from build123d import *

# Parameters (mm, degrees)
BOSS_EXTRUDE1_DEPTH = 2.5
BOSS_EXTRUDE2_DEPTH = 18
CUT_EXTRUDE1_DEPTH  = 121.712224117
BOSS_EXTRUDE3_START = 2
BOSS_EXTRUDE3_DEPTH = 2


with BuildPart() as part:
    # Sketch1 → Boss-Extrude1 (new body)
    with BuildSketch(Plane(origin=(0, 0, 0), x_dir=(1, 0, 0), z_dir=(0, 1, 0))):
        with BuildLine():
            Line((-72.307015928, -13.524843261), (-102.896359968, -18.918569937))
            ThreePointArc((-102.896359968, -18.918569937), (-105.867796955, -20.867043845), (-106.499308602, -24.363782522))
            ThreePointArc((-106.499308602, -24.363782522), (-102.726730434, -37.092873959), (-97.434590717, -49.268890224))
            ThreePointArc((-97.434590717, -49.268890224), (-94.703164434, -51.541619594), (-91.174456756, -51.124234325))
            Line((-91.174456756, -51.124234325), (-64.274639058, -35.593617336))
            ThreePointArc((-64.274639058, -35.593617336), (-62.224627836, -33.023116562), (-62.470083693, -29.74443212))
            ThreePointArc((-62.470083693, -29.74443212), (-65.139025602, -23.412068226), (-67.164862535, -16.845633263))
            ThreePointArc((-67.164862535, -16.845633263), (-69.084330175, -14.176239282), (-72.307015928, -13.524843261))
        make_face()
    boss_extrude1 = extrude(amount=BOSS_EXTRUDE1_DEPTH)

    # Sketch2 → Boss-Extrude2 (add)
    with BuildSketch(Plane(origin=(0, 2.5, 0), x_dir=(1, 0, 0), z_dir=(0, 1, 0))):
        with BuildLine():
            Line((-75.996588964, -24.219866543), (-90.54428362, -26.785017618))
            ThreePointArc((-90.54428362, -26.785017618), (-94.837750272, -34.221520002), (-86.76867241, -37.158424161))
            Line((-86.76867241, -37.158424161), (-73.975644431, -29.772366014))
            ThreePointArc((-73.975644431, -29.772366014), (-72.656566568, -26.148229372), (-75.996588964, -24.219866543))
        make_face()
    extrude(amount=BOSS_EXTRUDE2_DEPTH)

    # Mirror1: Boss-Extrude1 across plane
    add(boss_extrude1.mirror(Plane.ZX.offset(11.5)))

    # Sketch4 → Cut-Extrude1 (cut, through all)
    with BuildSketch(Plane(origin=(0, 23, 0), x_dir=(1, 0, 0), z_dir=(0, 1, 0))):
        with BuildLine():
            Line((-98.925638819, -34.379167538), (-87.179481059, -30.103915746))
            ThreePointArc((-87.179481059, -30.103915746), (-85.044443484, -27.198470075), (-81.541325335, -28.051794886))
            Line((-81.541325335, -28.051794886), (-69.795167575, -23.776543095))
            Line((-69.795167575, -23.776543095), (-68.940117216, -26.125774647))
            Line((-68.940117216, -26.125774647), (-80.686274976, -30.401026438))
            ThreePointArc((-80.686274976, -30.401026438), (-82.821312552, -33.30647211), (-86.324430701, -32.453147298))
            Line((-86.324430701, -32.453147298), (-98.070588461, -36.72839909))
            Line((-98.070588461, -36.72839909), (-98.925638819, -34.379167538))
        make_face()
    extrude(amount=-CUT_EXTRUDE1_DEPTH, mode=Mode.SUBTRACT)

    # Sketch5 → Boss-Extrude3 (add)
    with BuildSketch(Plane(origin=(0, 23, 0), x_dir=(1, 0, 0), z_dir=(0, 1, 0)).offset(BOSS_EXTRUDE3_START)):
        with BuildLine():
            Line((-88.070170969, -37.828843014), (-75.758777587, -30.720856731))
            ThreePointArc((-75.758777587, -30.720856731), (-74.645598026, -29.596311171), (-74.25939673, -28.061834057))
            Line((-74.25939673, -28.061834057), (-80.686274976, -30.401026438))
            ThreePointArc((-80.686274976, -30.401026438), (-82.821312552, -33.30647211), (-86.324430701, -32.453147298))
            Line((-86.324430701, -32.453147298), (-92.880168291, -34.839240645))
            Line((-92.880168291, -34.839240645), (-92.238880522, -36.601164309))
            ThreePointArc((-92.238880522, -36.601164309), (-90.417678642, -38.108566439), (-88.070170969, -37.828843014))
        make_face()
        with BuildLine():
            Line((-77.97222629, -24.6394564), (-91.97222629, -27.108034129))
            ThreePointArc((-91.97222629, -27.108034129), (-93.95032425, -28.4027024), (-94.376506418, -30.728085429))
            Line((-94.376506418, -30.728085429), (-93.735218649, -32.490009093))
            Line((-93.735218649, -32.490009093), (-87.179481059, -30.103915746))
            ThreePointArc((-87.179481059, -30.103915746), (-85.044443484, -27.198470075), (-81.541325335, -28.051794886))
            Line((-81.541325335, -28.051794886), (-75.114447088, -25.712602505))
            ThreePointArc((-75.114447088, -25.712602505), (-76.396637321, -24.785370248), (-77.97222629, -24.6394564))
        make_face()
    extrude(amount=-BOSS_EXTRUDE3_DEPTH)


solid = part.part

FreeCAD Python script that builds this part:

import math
import FreeCAD as App
import Part
import Sketcher

V = App.Vector
Q = App.Units.Quantity

doc = App.newDocument("Part")
params = doc.addObject("Spreadsheet::Sheet", "Params")
for row, (alias, value) in enumerate([
    ("sketch1_radius", "109 mm"),
    ("sketch1_radius2", "69 mm"),
    ("sketch1_radius3", "4.5 mm"),
    ("pad1_length", "2.5 mm"),
    ("sketch2_radius", "3 mm"),
    ("pad2_length", "18 mm"),
    ("sketch3_radius", "3.25 mm"),
    ("sketch3_length", "12.5 mm"),
    ("sketch3_length2", "2.5 mm"),
    ("sketch4_radius", "3 mm"),
    ("sketch4_radius2", "3.25 mm"),
    ("pad3_length", "2 mm"),
], start=1):
    params.set(f"A{row}", alias)
    params.set(f"B{row}", "=" + value)
    params.setAlias(f"B{row}", alias)

body = doc.addObject("PartDesign::Body", "Body")

# Sketch on XZ plane
sketch1 = body.newObject("Sketcher::SketchObject", "Sketch")
sketch1.AttachmentSupport = (doc.getObject("XZ_Plane"), [""])
sketch1.MapMode = "FlatFace"
sketch1.addGeometry(Part.LineSegment(V(-72.3, 13.5, 0), V(-102.9, 18.9, 0)), False)
sketch1.addGeometry(Part.ArcOfCircle(Part.Circle(V(-102.1, 23.4, 0), V(0, 0, 1), 4.5), math.radians(167), math.radians(260)), False)
sketch1.addGeometry(Part.ArcOfCircle(Part.Circle(V(-0.3, -0.2, 0), V(0, 0, 1), 109), math.radians(153.02), math.radians(166.98)), False)
sketch1.addGeometry(Part.ArcOfCircle(Part.Circle(V(-93.4, 47.2, 0), V(0, 0, 1), 4.5), math.radians(60), math.radians(153)), False)
sketch1.addGeometry(Part.LineSegment(V(-91.2, 51.1, 0), V(-64.3, 35.6, 0)), False)
sketch1.addGeometry(Part.ArcOfCircle(Part.Circle(V(-66.5, 31.7, 0), V(0, 0, 1), 4.5), math.radians(-26), math.radians(60)), False)
sketch1.addGeometry(Part.ArcOfCircle(Part.Circle(V(-0.3, -0.2, 0), V(0, 0, 1), 69), math.radians(154.29), math.radians(165.71)), False)
sketch1.addGeometry(Part.ArcOfCircle(Part.Circle(V(-71.5, 18, 0), V(0, 0, 1), 4.5), math.radians(-100), math.radians(-14)), False)
sketch1.addConstraint(Sketcher.Constraint("Tangent", 0, 2, 1, 2))
sketch1.addConstraint(Sketcher.Constraint("Tangent", 1, 1, 2, 2))
sketch1.addConstraint(Sketcher.Constraint("Tangent", 2, 1, 3, 2))
sketch1.addConstraint(Sketcher.Constraint("Tangent", 3, 1, 4, 1))
sketch1.addConstraint(Sketcher.Constraint("Tangent", 4, 2, 5, 2))
sketch1.addConstraint(Sketcher.Constraint("Tangent", 5, 1, 6, 1))
sketch1.addConstraint(Sketcher.Constraint("Tangent", 6, 2, 7, 2))
sketch1.addConstraint(Sketcher.Constraint("Tangent", 7, 1, 0, 1))
sketch1.addConstraint(Sketcher.Constraint("Coincident", 6, 3, 2, 3))
sketch1.addConstraint(Sketcher.Constraint("Equal", 1, 3))
sketch1.addConstraint(Sketcher.Constraint("Equal", 3, 5))
sketch1.addConstraint(Sketcher.Constraint("Equal", 5, 7))
sketch1.addConstraint(Sketcher.Constraint("Equal", 0, 4))
sketch1.addConstraint(Sketcher.Constraint("Radius", 2, 109.0))
sketch1.addConstraint(Sketcher.Constraint("Radius", 6, 69.0))
sketch1.addConstraint(Sketcher.Constraint("Radius", 1, 4.5))
sketch1.addConstraint(Sketcher.Constraint("Angle", 0, Q("170 deg")))
sketch1.addConstraint(Sketcher.Constraint("Angle", 4, Q("-30 deg")))
sketch1.addConstraint(Sketcher.Constraint("DistanceX", 7, 3, -1, 1, 71.525599))
sketch1.addConstraint(Sketcher.Constraint("DistanceY", 1, 3, 5, 3, 8.346298))
sketch1.addConstraint(Sketcher.Constraint("DistanceY", 2, 3, -1, 1, 0.187322))
sketch1.setExpression("Constraints[13]", "Params.sketch1_radius")
sketch1.setExpression("Constraints[14]", "Params.sketch1_radius2")
sketch1.setExpression("Constraints[15]", "Params.sketch1_radius3")
pad1 = body.newObject("PartDesign::Pad", "Pad")
pad1.Profile = sketch1
pad1.setExpression("Length", "Params.pad1_length")
pad1.Reversed = True

# Sketch on XZ plane
sketch2 = body.newObject("Sketcher::SketchObject", "Sketch001")
sketch2.AttachmentSupport = (doc.getObject("XZ_Plane"), [""])
sketch2.MapMode = "FlatFace"
sketch2.AttachmentOffset = App.Placement(V(0, 0, -2.5), App.Rotation())
sketch2.addGeometry(Part.LineSegment(V(-76, 24.2, 0), V(-90.5, 26.8, 0)), False)
sketch2.addGeometry(Part.ArcOfCircle(Part.Circle(V(-89.6, 32.3, 0), V(0, 0, 1), 5.6), math.radians(60), math.radians(260)), False)
sketch2.addGeometry(Part.LineSegment(V(-86.8, 37.2, 0), V(-74, 29.8, 0)), False)
sketch2.addGeometry(Part.ArcOfCircle(Part.Circle(V(-75.5, 27.2, 0), V(0, 0, 1), 3), math.radians(-100), math.radians(60)), False)
sketch2.addConstraint(Sketcher.Constraint("Tangent", 0, 2, 1, 2))
sketch2.addConstraint(Sketcher.Constraint("Tangent", 1, 1, 2, 1))
sketch2.addConstraint(Sketcher.Constraint("Tangent", 2, 2, 3, 2))
sketch2.addConstraint(Sketcher.Constraint("Tangent", 3, 1, 0, 1))
sketch2.addConstraint(Sketcher.Constraint("Radius", 3, 3.0))
sketch2.addConstraint(Sketcher.Constraint("Angle", 0, Q("170 deg")))
sketch2.addConstraint(Sketcher.Constraint("Angle", 2, Q("-30 deg")))
sketch2.addConstraint(Sketcher.Constraint("Radius", 1, 5.604723))
sketch2.addConstraint(Sketcher.Constraint("DistanceY", -1, 1, 1, 3, 32.304592))
sketch2.addConstraint(Sketcher.Constraint("DistanceX", 3, 1, -1, 1, 75.996589))
sketch2.setExpression("Constraints[4]", "Params.sketch2_radius")
pad2 = body.newObject("PartDesign::Pad", "Pad001")
pad2.Profile = sketch2
pad2.setExpression("Length", "Params.pad2_length")
pad2.Reversed = True
doc.recompute()

datumplane = body.newObject("PartDesign::Plane", "DatumPlane")
datumplane.AttachmentSupport = (doc.getObject("XZ_Plane"), [""])
datumplane.MapMode = "FlatFace"
datumplane.AttachmentOffset = App.Placement(V(0, 0, -11.5), App.Rotation())
mirrored = body.newObject("PartDesign::Mirrored", "Mirrored")
mirrored.Originals = [pad1]
mirrored.MirrorPlane = (datumplane, [""])
body.Tip = mirrored

# Sketch on XZ plane
sketch3 = body.newObject("Sketcher::SketchObject", "Sketch002")
sketch3.AttachmentSupport = (doc.getObject("XZ_Plane"), [""])
sketch3.MapMode = "FlatFace"
sketch3.AttachmentOffset = App.Placement(V(0, 0, -23), App.Rotation())
sketch3.addGeometry(Part.LineSegment(V(-87.2, 30.1, 0), V(-98.9, 34.4, 0)), False)
sketch3.addGeometry(Part.LineSegment(V(-98.9, 34.4, 0), V(-98.1, 36.7, 0)), False)
sketch3.addGeometry(Part.LineSegment(V(-98.1, 36.7, 0), V(-86.3, 32.5, 0)), False)
sketch3.addGeometry(Part.ArcOfCircle(Part.Circle(V(-83.9, 30.3, 0), V(0, 0, 1), 3.2), math.radians(3), math.radians(137)), False)
sketch3.addGeometry(Part.LineSegment(V(-80.7, 30.4, 0), V(-68.9, 26.1, 0)), False)
sketch3.addGeometry(Part.LineSegment(V(-68.9, 26.1, 0), V(-69.8, 23.8, 0)), False)
sketch3.addGeometry(Part.LineSegment(V(-69.8, 23.8, 0), V(-81.5, 28.1, 0)), False)
sketch3.addGeometry(Part.ArcOfCircle(Part.Circle(V(-83.9, 30.3, 0), V(0, 0, 1), 3.2), math.radians(-177), math.radians(-43)), False)
sketch3.addConstraint(Sketcher.Constraint("Coincident", 0, 2, 1, 1))
sketch3.addConstraint(Sketcher.Constraint("Coincident", 1, 2, 2, 1))
sketch3.addConstraint(Sketcher.Constraint("Coincident", 2, 2, 3, 2))
sketch3.addConstraint(Sketcher.Constraint("Coincident", 3, 1, 4, 1))
sketch3.addConstraint(Sketcher.Constraint("Coincident", 4, 2, 5, 1))
sketch3.addConstraint(Sketcher.Constraint("Coincident", 5, 2, 6, 1))
sketch3.addConstraint(Sketcher.Constraint("Coincident", 6, 2, 7, 2))
sketch3.addConstraint(Sketcher.Constraint("Coincident", 7, 1, 0, 1))
sketch3.addConstraint(Sketcher.Constraint("Coincident", 7, 3, 3, 3))
sketch3.addConstraint(Sketcher.Constraint("Equal", 3, 7))
sketch3.addConstraint(Sketcher.Constraint("Perpendicular", 0, 1))
sketch3.addConstraint(Sketcher.Constraint("Perpendicular", 1, 2))
sketch3.addConstraint(Sketcher.Constraint("Parallel", 2, 4))
sketch3.addConstraint(Sketcher.Constraint("Perpendicular", 4, 5))
sketch3.addConstraint(Sketcher.Constraint("Perpendicular", 5, 6))
sketch3.addConstraint(Sketcher.Constraint("Equal", 0, 2))
sketch3.addConstraint(Sketcher.Constraint("Equal", 2, 4))
sketch3.addConstraint(Sketcher.Constraint("Equal", 1, 5))
sketch3.addConstraint(Sketcher.Constraint("Equal", 4, 6))
sketch3.addConstraint(Sketcher.Constraint("Angle", 0, Q("160 deg")))
sketch3.addConstraint(Sketcher.Constraint("Radius", 3, 3.25))
sketch3.addConstraint(Sketcher.Constraint("Distance", 0, 12.5))
sketch3.addConstraint(Sketcher.Constraint("Distance", 1, 2.5))
sketch3.addConstraint(Sketcher.Constraint("DistanceY", -1, 1, 1, 2, 36.728399))
sketch3.addConstraint(Sketcher.Constraint("DistanceX", 3, 3, -1, 1, 83.932878))
sketch3.setExpression("Constraints[20]", "Params.sketch3_radius")
sketch3.setExpression("Constraints[21]", "Params.sketch3_length")
sketch3.setExpression("Constraints[22]", "Params.sketch3_length2")
pocket1 = body.newObject("PartDesign::Pocket", "Pocket")
pocket1.Profile = sketch3
pocket1.Type = "ThroughAll"
pocket1.Reversed = True

# Sketch on XZ plane
sketch4 = body.newObject("Sketcher::SketchObject", "Sketch003")
sketch4.AttachmentSupport = (doc.getObject("XZ_Plane"), [""])
sketch4.MapMode = "FlatFace"
sketch4.AttachmentOffset = App.Placement(V(0, 0, -25), App.Rotation())
sketch4.addGeometry(Part.LineSegment(V(-88.1, 37.8, 0), V(-75.8, 30.7, 0)), False)
sketch4.addGeometry(Part.ArcOfCircle(Part.Circle(V(-77.3, 28.1, 0), V(0, 0, 1), 3), math.radians(-1), math.radians(60)), False)
sketch4.addGeometry(Part.LineSegment(V(-74.3, 28.1, 0), V(-80.7, 30.4, 0)), False)
sketch4.addGeometry(Part.ArcOfCircle(Part.Circle(V(-83.9, 30.3, 0), V(0, 0, 1), 3.2), math.radians(3), math.radians(137)), False)
sketch4.addGeometry(Part.LineSegment(V(-86.3, 32.5, 0), V(-92.9, 34.8, 0)), False)
sketch4.addGeometry(Part.LineSegment(V(-92.9, 34.8, 0), V(-92.2, 36.6, 0)), False)
sketch4.addGeometry(Part.ArcOfCircle(Part.Circle(V(-89.6, 35.2, 0), V(0, 0, 1), 3), math.radians(60), math.radians(153)), False)
sketch4.addGeometry(Part.LineSegment(V(-78, 24.6, 0), V(-92, 27.1, 0)), False)
sketch4.addGeometry(Part.ArcOfCircle(Part.Circle(V(-91.5, 30.1, 0), V(0, 0, 1), 3), math.radians(167), math.radians(260)), False)
sketch4.addGeometry(Part.LineSegment(V(-94.4, 30.7, 0), V(-93.7, 32.5, 0)), False)
sketch4.addGeometry(Part.LineSegment(V(-93.7, 32.5, 0), V(-87.2, 30.1, 0)), False)
sketch4.addGeometry(Part.ArcOfCircle(Part.Circle(V(-83.9, 30.3, 0), V(0, 0, 1), 3.2), math.radians(-177), math.radians(-43)), False)
sketch4.addGeometry(Part.LineSegment(V(-81.5, 28.1, 0), V(-75.1, 25.7, 0)), False)
sketch4.addGeometry(Part.ArcOfCircle(Part.Circle(V(-77.5, 27.6, 0), V(0, 0, 1), 3), math.radians(-100), math.radians(-39)), False)
sketch4.addConstraint(Sketcher.Constraint("Tangent", 0, 2, 1, 2))
sketch4.addConstraint(Sketcher.Constraint("Coincident", 1, 1, 2, 1))
sketch4.addConstraint(Sketcher.Constraint("Coincident", 2, 2, 3, 1))
sketch4.addConstraint(Sketcher.Constraint("Coincident", 3, 2, 4, 1))
sketch4.addConstraint(Sketcher.Constraint("Coincident", 4, 2, 5, 1))
sketch4.addConstraint(Sketcher.Constraint("Coincident", 5, 2, 6, 2))
sketch4.addConstraint(Sketcher.Constraint("Tangent", 6, 1, 0, 1))
sketch4.addConstraint(Sketcher.Constraint("Tangent", 7, 2, 8, 2))
sketch4.addConstraint(Sketcher.Constraint("Coincident", 8, 1, 9, 1))
sketch4.addConstraint(Sketcher.Constraint("Coincident", 9, 2, 10, 1))
sketch4.addConstraint(Sketcher.Constraint("Coincident", 10, 2, 11, 1))
sketch4.addConstraint(Sketcher.Constraint("Coincident", 11, 2, 12, 1))
sketch4.addConstraint(Sketcher.Constraint("Coincident", 12, 2, 13, 2))
sketch4.addConstraint(Sketcher.Constraint("Tangent", 13, 1, 7, 1))
sketch4.addConstraint(Sketcher.Constraint("Coincident", 11, 3, 3, 3))
sketch4.addConstraint(Sketcher.Constraint("Equal", 1, 6))
sketch4.addConstraint(Sketcher.Constraint("Equal", 6, 8))
sketch4.addConstraint(Sketcher.Constraint("Equal", 3, 11))
sketch4.addConstraint(Sketcher.Constraint("Equal", 8, 13))
sketch4.addConstraint(Sketcher.Constraint("Parallel", 2, 4))
sketch4.addConstraint(Sketcher.Constraint("Perpendicular", 4, 5))
sketch4.addConstraint(Sketcher.Constraint("Parallel", 5, 9))
sketch4.addConstraint(Sketcher.Constraint("Perpendicular", 9, 10))
sketch4.addConstraint(Sketcher.Constraint("Parallel", 10, 12))
sketch4.addConstraint(Sketcher.Constraint("Equal", 0, 7))
sketch4.addConstraint(Sketcher.Constraint("Equal", 5, 9))
sketch4.addConstraint(Sketcher.Constraint("Equal", 4, 10))
sketch4.addConstraint(Sketcher.Constraint("Equal", 2, 12))
sketch4.addConstraint(Sketcher.Constraint("Radius", 1, 3.0))
sketch4.addConstraint(Sketcher.Constraint("Angle", 0, Q("-30 deg")))
sketch4.addConstraint(Sketcher.Constraint("Angle", 2, Q("160 deg")))
sketch4.addConstraint(Sketcher.Constraint("Angle", 7, Q("170 deg")))
sketch4.addConstraint(Sketcher.Constraint("Radius", 3, 3.25))
sketch4.addConstraint(Sketcher.Constraint("DistanceX", 8, 3, 13, 3, 14.0))
sketch4.addConstraint(Sketcher.Constraint("Distance", 5, 1.875))
sketch4.addConstraint(Sketcher.Constraint("DistanceX", 3, 3, 1, 3, 6.6741))
sketch4.addConstraint(Sketcher.Constraint("DistanceY", 13, 3, 1, 3, 0.528901))
sketch4.addConstraint(Sketcher.Constraint("DistanceX", 5, 2, 8, 3, 0.787599))
sketch4.addConstraint(Sketcher.Constraint("DistanceX", 8, 3, 10, 2, 4.271801))
sketch4.addConstraint(Sketcher.Constraint("DistanceX", 11, 2, 13, 1, 3.569099))
sketch4.addConstraint(Sketcher.Constraint("Distance", 2, 6.839341))
sketch4.addConstraint(Sketcher.Constraint("DistanceY", -1, 1, 1, 3, 28.122781))
sketch4.addConstraint(Sketcher.Constraint("DistanceX", 3, 3, -1, 1, 83.932878))
sketch4.setExpression("Constraints[28]", "Params.sketch4_radius")
sketch4.setExpression("Constraints[32]", "Params.sketch4_radius2")
pad3 = body.newObject("PartDesign::Pad", "Pad002")
pad3.Profile = sketch4
pad3.setExpression("Length", "Params.pad3_length")

doc.recompute()
